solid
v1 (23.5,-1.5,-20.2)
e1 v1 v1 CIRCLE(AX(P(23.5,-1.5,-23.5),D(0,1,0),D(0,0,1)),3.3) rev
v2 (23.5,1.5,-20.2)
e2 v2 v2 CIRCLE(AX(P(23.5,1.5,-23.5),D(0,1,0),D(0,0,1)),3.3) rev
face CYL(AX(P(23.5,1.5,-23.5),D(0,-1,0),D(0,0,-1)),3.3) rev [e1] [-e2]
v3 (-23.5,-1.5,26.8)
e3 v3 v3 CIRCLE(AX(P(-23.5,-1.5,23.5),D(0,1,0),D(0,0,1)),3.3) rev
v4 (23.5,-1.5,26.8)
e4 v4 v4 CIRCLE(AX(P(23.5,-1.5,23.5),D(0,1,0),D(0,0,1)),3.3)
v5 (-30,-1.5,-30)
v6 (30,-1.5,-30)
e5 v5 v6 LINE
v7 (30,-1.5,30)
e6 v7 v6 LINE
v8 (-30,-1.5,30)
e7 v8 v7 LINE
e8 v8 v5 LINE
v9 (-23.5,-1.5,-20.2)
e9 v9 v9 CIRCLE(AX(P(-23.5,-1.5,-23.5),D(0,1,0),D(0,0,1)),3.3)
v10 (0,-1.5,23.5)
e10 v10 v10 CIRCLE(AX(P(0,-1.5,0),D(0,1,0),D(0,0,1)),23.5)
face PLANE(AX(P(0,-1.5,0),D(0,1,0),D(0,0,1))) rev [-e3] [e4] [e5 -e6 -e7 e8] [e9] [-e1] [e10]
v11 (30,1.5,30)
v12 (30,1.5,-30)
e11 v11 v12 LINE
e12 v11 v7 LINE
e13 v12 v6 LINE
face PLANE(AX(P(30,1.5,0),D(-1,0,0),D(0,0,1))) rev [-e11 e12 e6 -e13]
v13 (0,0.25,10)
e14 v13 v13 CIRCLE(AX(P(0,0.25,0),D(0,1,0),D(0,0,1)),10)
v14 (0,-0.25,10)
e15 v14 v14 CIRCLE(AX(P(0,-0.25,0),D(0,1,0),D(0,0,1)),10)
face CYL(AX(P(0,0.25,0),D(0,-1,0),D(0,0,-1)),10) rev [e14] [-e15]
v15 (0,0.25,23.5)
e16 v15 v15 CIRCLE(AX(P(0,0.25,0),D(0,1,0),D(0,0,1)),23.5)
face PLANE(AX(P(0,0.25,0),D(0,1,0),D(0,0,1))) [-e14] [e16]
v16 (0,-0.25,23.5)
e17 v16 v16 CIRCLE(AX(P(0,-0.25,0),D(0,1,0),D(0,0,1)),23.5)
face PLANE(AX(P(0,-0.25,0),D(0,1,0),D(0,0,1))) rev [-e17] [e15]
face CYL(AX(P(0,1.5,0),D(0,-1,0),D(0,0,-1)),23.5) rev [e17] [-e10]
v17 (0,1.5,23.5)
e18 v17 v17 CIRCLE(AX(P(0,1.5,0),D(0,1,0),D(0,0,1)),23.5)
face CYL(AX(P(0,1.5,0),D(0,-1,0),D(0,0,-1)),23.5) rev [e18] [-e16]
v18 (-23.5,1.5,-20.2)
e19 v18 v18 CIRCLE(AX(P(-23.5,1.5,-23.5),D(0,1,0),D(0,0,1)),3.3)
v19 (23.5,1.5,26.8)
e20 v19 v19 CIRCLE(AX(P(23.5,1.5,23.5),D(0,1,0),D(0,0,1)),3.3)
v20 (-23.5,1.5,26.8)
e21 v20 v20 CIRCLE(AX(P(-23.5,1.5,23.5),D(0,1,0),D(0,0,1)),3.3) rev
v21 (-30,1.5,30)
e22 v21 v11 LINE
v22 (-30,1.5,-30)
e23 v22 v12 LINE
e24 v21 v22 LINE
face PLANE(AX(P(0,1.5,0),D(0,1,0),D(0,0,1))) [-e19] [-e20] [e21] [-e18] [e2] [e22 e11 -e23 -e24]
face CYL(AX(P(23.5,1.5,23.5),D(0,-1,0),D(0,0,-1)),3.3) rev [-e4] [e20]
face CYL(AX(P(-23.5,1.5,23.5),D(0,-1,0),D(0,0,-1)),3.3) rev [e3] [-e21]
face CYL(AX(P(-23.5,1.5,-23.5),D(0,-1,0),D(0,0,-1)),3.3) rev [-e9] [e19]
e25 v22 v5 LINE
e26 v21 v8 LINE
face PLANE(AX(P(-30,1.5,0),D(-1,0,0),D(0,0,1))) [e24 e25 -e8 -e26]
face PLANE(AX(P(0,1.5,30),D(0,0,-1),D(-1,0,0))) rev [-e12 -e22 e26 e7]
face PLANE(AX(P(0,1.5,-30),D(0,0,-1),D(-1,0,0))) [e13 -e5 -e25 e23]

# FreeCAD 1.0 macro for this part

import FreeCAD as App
import Part
import Sketcher

V = App.Vector
Q = App.Units.Quantity


def add_polygon(sketch, points):
    """Adds a closed chain of lines whose ends are joined by coincident constraints."""
    first, n = sketch.GeometryCount, len(points)
    for a, b in zip(points, points[1:] + points[:1]):
        sketch.addGeometry(Part.LineSegment(App.Vector(*a, 0), App.Vector(*b, 0)), False)
    for i in range(n):
        sketch.addConstraint(Sketcher.Constraint("Coincident", first + i, 2, first + (i + 1) % n, 1))

doc = App.newDocument("Part")
body = doc.addObject("PartDesign::Body", "Body")

# Sketch on XZ plane
sketch1 = body.newObject("Sketcher::SketchObject", "Sketch")
sketch1.AttachmentSupport = (doc.getObject("XZ_Plane"), [""])
sketch1.MapMode = "FlatFace"
add_polygon(sketch1, [(-30, -30), (-30, 30), (30, 30), (30, -30)])  # lines 0-3
sketch1.addGeometry(Part.Circle(V(-23.5, 23.5, 0), V(0, 0, 1), 3.3), False)  # 4
sketch1.addGeometry(Part.Circle(V(0, 0, 0), V(0, 0, 1), 23.5), False)  # 5
sketch1.addGeometry(Part.Circle(V(23.5, 23.5, 0), V(0, 0, 1), 3.3), False)  # 6
sketch1.addGeometry(Part.Circle(V(-23.5, -23.5, 0), V(0, 0, 1), 3.3), False)  # 7
sketch1.addGeometry(Part.Circle(V(23.5, -23.5, 0), V(0, 0, 1), 3.3), False)  # 8
sketch1.addConstraint([
    Sketcher.Constraint("Vertical", 0),
    Sketcher.Constraint("Horizontal", 1),
    Sketcher.Constraint("Vertical", 2),
    Sketcher.Constraint("Horizontal", 3),
    Sketcher.Constraint("Coincident", 5, 3, -1, 1),
    Sketcher.Constraint("Equal", 4, 6),
    Sketcher.Constraint("Equal", 6, 7),
    Sketcher.Constraint("Equal", 7, 8),
    Sketcher.Constraint("Symmetric", 6, 3, 7, 3, -1, 1),
    Sketcher.Constraint("Symmetric", 4, 3, 8, 3, -1, 1),
    Sketcher.Constraint("Symmetric", 0, 2, 2, 2, -1, 1),
    Sketcher.Constraint("Symmetric", 4, 3, 6, 3, -2),
    Sketcher.Constraint("Equal", 3, 0),
    Sketcher.Constraint("Diameter", 5, Q("47 mm")),
    Sketcher.Constraint("Diameter", 4, Q("6.6 mm")),
    Sketcher.Constraint("DistanceX", 1, 1, 1, 2, Q("60 mm")),
    Sketcher.Constraint("DistanceX", 4, 3, 6, 3, Q("47 mm")),
    Sketcher.Constraint("DistanceY", 7, 3, 4, 3, Q("47 mm")),
])
pad1 = body.newObject("PartDesign::Pad", "Pad")
pad1.Profile = sketch1
pad1.Length = 3
pad1.Midplane = True

# Sketch on XZ plane
sketch2 = body.newObject("Sketcher::SketchObject", "Sketch001")
sketch2.AttachmentSupport = (doc.getObject("XZ_Plane"), [""])
sketch2.MapMode = "FlatFace"
sketch2.AttachmentOffset = App.Placement(V(0, 0, 0.25), App.Rotation())
sketch2.addGeometry([
    Part.Circle(V(0, 0, 0), V(0, 0, 1), 24),
    Part.Circle(V(0, 0, 0), V(0, 0, 1), 10),
], False)
sketch2.addConstraint([
    Sketcher.Constraint("Coincident", 0, 3, -1, 1),
    Sketcher.Constraint("Coincident", 1, 3, -1, 1),
    Sketcher.Constraint("Diameter", 0, Q("47 mm")),
    Sketcher.Constraint("Diameter", 1, Q("20 mm")),
])
pad2 = body.newObject("PartDesign::Pad", "Pad001")
pad2.Profile = sketch2
pad2.Length = 0.5
pad2.Reversed = True

doc.recompute()
